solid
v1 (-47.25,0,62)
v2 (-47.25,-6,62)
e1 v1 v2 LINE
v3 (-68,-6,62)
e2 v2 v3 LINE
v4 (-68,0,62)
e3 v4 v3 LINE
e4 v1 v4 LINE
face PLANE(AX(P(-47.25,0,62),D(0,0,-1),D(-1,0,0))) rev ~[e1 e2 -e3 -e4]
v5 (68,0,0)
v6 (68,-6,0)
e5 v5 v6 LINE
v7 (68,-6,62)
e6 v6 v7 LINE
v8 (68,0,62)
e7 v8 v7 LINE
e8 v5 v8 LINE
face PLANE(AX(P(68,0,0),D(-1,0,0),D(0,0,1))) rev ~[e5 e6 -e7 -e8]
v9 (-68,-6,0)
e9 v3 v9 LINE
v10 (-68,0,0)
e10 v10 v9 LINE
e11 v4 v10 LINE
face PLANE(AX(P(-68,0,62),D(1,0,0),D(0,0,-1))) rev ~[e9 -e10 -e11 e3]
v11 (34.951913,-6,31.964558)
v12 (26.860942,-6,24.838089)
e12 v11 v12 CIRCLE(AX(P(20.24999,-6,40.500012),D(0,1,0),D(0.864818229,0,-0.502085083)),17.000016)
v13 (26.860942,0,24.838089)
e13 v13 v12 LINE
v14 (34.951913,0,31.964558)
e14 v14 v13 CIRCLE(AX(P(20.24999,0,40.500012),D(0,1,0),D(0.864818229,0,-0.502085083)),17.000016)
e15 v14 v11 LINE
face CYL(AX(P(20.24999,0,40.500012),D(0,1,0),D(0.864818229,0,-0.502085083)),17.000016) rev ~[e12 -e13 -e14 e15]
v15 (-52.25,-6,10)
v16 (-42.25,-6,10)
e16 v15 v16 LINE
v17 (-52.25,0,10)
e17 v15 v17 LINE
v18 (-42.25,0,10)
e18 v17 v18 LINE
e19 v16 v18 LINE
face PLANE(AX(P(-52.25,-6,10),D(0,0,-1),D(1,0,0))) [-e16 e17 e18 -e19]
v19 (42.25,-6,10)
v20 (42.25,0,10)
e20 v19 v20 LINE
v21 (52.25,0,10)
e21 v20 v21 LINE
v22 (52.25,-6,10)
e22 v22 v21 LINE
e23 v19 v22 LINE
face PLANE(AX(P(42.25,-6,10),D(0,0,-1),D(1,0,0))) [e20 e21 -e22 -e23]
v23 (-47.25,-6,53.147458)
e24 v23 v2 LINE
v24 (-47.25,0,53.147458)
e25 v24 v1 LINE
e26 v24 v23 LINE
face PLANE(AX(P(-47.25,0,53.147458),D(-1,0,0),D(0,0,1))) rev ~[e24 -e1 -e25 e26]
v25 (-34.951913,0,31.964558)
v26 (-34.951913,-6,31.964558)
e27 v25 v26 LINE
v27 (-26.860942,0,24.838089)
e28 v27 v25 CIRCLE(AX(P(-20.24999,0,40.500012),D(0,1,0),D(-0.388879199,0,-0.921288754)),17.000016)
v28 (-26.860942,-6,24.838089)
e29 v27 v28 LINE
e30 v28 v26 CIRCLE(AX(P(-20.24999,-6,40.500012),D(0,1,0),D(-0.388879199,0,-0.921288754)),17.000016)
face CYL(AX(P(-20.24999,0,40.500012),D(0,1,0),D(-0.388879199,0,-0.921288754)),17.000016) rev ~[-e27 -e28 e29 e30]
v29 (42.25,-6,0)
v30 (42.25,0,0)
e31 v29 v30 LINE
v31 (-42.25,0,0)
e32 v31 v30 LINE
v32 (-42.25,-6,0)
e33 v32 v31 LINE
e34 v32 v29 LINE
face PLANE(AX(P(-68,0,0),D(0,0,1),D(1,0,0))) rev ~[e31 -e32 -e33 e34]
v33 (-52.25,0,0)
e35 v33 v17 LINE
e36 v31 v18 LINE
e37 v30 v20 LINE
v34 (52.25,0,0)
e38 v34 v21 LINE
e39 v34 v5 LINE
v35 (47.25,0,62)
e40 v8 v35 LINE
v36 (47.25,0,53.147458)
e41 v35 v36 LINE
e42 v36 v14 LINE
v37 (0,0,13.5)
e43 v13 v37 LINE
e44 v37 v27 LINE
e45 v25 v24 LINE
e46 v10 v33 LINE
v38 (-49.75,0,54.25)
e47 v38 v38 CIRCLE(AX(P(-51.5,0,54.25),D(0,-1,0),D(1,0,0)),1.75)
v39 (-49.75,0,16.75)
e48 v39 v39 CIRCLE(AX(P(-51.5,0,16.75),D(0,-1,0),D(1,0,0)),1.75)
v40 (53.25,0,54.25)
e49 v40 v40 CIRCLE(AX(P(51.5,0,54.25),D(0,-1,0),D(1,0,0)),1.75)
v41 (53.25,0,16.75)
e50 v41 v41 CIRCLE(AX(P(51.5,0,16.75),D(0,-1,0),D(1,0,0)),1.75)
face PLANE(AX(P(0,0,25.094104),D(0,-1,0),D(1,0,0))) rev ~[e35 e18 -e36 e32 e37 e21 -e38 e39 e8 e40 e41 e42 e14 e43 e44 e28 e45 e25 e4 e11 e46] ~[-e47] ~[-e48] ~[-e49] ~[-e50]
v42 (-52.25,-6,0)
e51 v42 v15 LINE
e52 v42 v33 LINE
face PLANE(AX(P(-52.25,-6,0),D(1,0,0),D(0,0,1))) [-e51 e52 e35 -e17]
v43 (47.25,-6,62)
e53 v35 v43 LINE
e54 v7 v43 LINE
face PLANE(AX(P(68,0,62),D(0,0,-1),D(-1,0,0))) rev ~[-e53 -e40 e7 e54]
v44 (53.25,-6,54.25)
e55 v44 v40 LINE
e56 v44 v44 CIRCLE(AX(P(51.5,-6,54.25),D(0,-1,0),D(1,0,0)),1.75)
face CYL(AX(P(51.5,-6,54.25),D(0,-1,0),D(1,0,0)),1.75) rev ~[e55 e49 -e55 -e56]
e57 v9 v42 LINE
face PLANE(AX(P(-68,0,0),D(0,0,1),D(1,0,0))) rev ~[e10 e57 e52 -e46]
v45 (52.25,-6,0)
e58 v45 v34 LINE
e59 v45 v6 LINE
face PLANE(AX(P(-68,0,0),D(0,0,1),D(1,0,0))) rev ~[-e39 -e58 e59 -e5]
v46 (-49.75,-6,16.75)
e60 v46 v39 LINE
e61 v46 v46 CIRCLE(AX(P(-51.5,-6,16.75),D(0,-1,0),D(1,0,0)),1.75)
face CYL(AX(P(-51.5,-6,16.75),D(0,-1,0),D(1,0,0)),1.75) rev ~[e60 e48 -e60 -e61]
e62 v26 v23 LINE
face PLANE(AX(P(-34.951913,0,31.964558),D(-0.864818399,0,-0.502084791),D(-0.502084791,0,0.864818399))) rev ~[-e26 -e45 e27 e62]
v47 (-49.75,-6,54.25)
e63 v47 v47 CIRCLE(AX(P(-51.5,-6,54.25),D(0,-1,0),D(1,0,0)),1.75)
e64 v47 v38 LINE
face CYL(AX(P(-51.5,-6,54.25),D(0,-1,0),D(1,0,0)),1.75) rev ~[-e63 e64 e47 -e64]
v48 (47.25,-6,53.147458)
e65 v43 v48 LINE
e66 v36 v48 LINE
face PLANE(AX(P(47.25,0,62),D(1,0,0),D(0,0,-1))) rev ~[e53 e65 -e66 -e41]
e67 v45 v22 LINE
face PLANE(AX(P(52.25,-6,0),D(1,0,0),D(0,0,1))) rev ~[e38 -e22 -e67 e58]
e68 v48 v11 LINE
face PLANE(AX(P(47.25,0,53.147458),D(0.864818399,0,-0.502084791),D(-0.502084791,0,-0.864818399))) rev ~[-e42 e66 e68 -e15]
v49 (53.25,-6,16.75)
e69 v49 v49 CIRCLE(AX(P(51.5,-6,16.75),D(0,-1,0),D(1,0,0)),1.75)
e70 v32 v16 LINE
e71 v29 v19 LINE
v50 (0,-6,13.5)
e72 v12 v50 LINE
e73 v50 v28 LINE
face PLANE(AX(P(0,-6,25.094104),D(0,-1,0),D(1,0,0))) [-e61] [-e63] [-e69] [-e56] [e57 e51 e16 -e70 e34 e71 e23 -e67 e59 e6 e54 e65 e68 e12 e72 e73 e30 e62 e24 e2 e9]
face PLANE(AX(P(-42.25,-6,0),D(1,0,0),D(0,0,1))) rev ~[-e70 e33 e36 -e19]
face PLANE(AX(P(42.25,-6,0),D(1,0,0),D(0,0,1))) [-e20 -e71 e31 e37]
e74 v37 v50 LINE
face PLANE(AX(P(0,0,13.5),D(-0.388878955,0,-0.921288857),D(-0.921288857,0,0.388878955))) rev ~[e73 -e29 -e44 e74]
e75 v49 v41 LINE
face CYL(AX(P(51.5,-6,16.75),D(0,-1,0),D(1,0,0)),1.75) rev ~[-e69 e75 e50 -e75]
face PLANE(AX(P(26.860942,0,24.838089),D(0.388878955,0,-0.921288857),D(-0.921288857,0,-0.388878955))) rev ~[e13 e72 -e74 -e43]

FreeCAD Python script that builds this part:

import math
import FreeCAD as App
import Part
import Sketcher
from FreeCAD import Vector


def add_polygon(sketch, points):
    """Adds a closed chain of lines whose ends are joined by coincident constraints."""
    first, n = sketch.GeometryCount, len(points)
    for a, b in zip(points, points[1:] + points[:1]):
        sketch.addGeometry(Part.LineSegment(App.Vector(*a, 0), App.Vector(*b, 0)), False)
    for i in range(n):
        sketch.addConstraint(Sketcher.Constraint("Coincident", first + i, 2, first + (i + 1) % n, 1))

doc = App.newDocument("Part")
params = doc.addObject("Spreadsheet::Sheet", "Params")
for row, (alias, value) in enumerate([
    ("sketch1_width", "136 mm"),
    ("sketch1_height", "62 mm"),
    ("sketch1_width2", "20.75 mm"),
    ("pad1_length", "6 mm"),
    ("sketch2_diameter", "3.5 mm"),
    ("sketch3_width", "10 mm"),
], start=1):
    params.set(f"A{row}", alias)
    params.set(f"B{row}", "=" + value)
    params.setAlias(f"B{row}", alias)

body = doc.addObject("PartDesign::Body", "Body")

sketch1 = body.newObject("Sketcher::SketchObject", "Sketch")
sketch1.AttachmentSupport = (doc.getObject("XZ_Plane"), [""])
sketch1.MapMode = "FlatFace"
sketch1.addGeometry([
    Part.LineSegment(Vector(-68, 0, 0), Vector(68, 0, 0)),
    Part.LineSegment(Vector(68, 0, 0), Vector(68, 62, 0)),
    Part.LineSegment(Vector(68, 62, 0), Vector(47, 62, 0)),
    Part.LineSegment(Vector(47, 62, 0), Vector(47, 53, 0)),
    Part.LineSegment(Vector(47, 53, 0), Vector(35, 32, 0)),
    Part.ArcOfCircle(Part.Circle(Vector(20, 41, 0), Vector(0, 0, 1), 17), math.radians(-67), math.radians(-30)),
    Part.LineSegment(Vector(27, 25, 0), Vector(0, 14, 0)),
    Part.LineSegment(Vector(0, 14, 0), Vector(-27, 25, 0)),
    Part.ArcOfCircle(Part.Circle(Vector(-20, 41, 0), Vector(0, 0, 1), 17), math.radians(-150), math.radians(-113)),
    Part.LineSegment(Vector(-35, 32, 0), Vector(-47, 53, 0)),
    Part.LineSegment(Vector(-47, 53, 0), Vector(-47, 62, 0)),
    Part.LineSegment(Vector(-47, 62, 0), Vector(-68, 62, 0)),
    Part.LineSegment(Vector(-68, 62, 0), Vector(-68, 0, 0)),
], False)
sketch1.addConstraint([
    Sketcher.Constraint("Coincident", 0, 2, 1, 1),
    Sketcher.Constraint("Coincident", 1, 2, 2, 1),
    Sketcher.Constraint("Coincident", 2, 2, 3, 1),
    Sketcher.Constraint("Coincident", 3, 2, 4, 1),
    Sketcher.Constraint("Tangent", 4, 2, 5, 2),
    Sketcher.Constraint("Tangent", 5, 1, 6, 1),
    Sketcher.Constraint("Coincident", 6, 2, 7, 1),
    Sketcher.Constraint("Tangent", 7, 2, 8, 2),
    Sketcher.Constraint("Tangent", 8, 1, 9, 1),
    Sketcher.Constraint("Coincident", 9, 2, 10, 1),
    Sketcher.Constraint("Coincident", 10, 2, 11, 1),
    Sketcher.Constraint("Coincident", 11, 2, 12, 1),
    Sketcher.Constraint("Coincident", 12, 2, 0, 1),
    Sketcher.Constraint("Horizontal", 0),
    Sketcher.Constraint("Vertical", 1),
    Sketcher.Constraint("Horizontal", 2),
    Sketcher.Constraint("Vertical", 3),
    Sketcher.Constraint("Vertical", 10),
    Sketcher.Constraint("Horizontal", 11),
    Sketcher.Constraint("Vertical", 12),
    Sketcher.Constraint("Equal", 5, 8),
    Sketcher.Constraint("Symmetric", 0, 2, 12, 2, -1, 1),
    Sketcher.Constraint("Symmetric", 5, 3, 8, 3, -2),
    Sketcher.Constraint("Symmetric", 3, 2, 9, 2, -2),
    Sketcher.Constraint("PointOnObject", 6, 2, -2),
    Sketcher.Constraint("Horizontal", 2, 2, 10, 2),
    Sketcher.Constraint("DistanceX", 0, 1, 0, 2, 136.0),
    Sketcher.Constraint("DistanceY", 1, 1, 1, 2, 62.0),
    Sketcher.Constraint("DistanceX", 2, 2, 2, 1, 20.75),
    Sketcher.Constraint("DistanceY", -1, 1, 6, 2, 13.5),
    Sketcher.Constraint("Radius", 5, 17.000016),
    Sketcher.Constraint("DistanceY", 4, 2, 3, 2, 21.1829),
    Sketcher.Constraint("Distance", 6, 29.155831),
    Sketcher.Constraint("DistanceX", -1, 1, 5, 3, 20.24999),
])
sketch1.setExpression("Constraints[26]", "Params.sketch1_width")
sketch1.setExpression("Constraints[27]", "Params.sketch1_height")
sketch1.setExpression("Constraints[28]", "Params.sketch1_width2")
pad1 = body.newObject("PartDesign::Pad", "Pad")
pad1.Profile = sketch1
pad1.setExpression("Length", "Params.pad1_length")

sketch2 = body.newObject("Sketcher::SketchObject", "Sketch001")
sketch2.AttachmentSupport = (doc.getObject("XZ_Plane"), [""])
sketch2.MapMode = "FlatFace"
sketch2.AttachmentOffset = App.Placement(Vector(0, 0, 6), App.Rotation())
sketch2.addGeometry([
    Part.Circle(Vector(-51.5, 54.2, 0), Vector(0, 0, 1), 1.8),
    Part.Circle(Vector(-51.5, 16.8, 0), Vector(0, 0, 1), 1.8),
    Part.Circle(Vector(51.5, 54.2, 0), Vector(0, 0, 1), 1.8),
    Part.Circle(Vector(51.5, 16.8, 0), Vector(0, 0, 1), 1.8),
], False)
sketch2.addConstraint([
    Sketcher.Constraint("Equal", 0, 1),
    Sketcher.Constraint("Equal", 1, 2),
    Sketcher.Constraint("Equal", 2, 3),
    Sketcher.Constraint("Symmetric", 0, 3, 2, 3, -2),
    Sketcher.Constraint("Symmetric", 1, 3, 3, 3, -2),
    Sketcher.Constraint("Vertical", 0, 3, 1, 3),
    Sketcher.Constraint("Diameter", 0, 3.5),
    Sketcher.Constraint("DistanceX", 0, 3, 2, 3, 103.0),
    Sketcher.Constraint("DistanceY", 1, 3, 0, 3, 37.5),
    Sketcher.Constraint("DistanceY", -1, 1, 0, 3, 54.25),
])
sketch2.setExpression("Constraints[6]", "Params.sketch2_diameter")
pocket1 = body.newObject("PartDesign::Pocket", "Pocket")
pocket1.Profile = sketch2
pocket1.Type = "ThroughAll"

sketch3 = body.newObject("Sketcher::SketchObject", "Sketch002")
sketch3.AttachmentSupport = (doc.getObject("XZ_Plane"), [""])
sketch3.MapMode = "FlatFace"
sketch3.AttachmentOffset = App.Placement(Vector(0, 0, 6), App.Rotation())
add_polygon(sketch3, [(-52, 10), (-52, 0), (-42, 0), (-42, 10)])
add_polygon(sketch3, [(42, 10), (42, 0), (52, 0), (52, 10)])
sketch3.addConstraint([
    Sketcher.Constraint("Vertical", 0),
    Sketcher.Constraint("Horizontal", 1),
    Sketcher.Constraint("Vertical", 2),
    Sketcher.Constraint("Horizontal", 3),
    Sketcher.Constraint("Vertical", 4),
    Sketcher.Constraint("Horizontal", 5),
    Sketcher.Constraint("Vertical", 6),
    Sketcher.Constraint("Horizontal", 7),
    Sketcher.Constraint("Symmetric", 1, 2, 4, 2, -1, 1),
    Sketcher.Constraint("Symmetric", 0, 2, 5, 2, -2),
    Sketcher.Constraint("Horizontal", 3, 2, 6, 2),
    Sketcher.Constraint("Equal", 7, 0),
    Sketcher.Constraint("DistanceX", 1, 1, 1, 2, 10.0),
    Sketcher.Constraint("DistanceX", 1, 2, 4, 2, 84.5),
])
sketch3.setExpression("Constraints[20]", "Params.sketch3_width")
pocket2 = body.newObject("PartDesign::Pocket", "Pocket001")
pocket2.Profile = sketch3
pocket2.Type = "ThroughAll"

doc.recompute()
